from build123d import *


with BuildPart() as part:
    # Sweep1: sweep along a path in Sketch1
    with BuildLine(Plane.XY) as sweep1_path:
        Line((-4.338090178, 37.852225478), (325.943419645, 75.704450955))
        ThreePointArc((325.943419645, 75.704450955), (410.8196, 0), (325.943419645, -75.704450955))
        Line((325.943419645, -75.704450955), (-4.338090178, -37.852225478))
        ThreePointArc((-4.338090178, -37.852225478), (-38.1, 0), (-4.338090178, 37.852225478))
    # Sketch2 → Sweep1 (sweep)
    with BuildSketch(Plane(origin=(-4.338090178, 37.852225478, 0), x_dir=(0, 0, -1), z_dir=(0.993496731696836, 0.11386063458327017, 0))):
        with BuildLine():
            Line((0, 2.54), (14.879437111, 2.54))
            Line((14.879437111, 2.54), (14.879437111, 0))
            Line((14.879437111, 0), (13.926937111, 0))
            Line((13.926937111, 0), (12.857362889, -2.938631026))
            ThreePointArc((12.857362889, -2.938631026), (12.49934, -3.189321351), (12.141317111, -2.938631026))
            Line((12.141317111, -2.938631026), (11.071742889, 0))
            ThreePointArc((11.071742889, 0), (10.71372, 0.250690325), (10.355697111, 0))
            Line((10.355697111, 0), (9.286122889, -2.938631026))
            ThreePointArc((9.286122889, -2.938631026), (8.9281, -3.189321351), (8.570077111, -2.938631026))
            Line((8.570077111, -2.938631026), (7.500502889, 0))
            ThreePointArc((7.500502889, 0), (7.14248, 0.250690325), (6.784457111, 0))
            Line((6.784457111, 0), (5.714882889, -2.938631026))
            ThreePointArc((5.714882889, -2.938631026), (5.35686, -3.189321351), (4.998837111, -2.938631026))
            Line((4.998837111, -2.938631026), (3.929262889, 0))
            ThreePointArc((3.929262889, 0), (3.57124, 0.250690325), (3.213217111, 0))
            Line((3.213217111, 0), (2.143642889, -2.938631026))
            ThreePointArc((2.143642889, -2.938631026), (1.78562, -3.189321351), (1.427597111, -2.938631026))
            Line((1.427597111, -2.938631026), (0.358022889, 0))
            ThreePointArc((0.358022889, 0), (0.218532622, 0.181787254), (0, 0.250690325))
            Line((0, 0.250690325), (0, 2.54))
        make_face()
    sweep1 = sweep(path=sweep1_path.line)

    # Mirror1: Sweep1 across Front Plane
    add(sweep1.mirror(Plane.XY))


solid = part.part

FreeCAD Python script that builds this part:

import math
import FreeCAD as App
import Part
import Sketcher
from FreeCAD import Vector
Q = App.Units.Quantity

doc = App.newDocument("Part")
body = doc.addObject("PartDesign::Body", "Body")

sketch1 = body.newObject("Sketcher::SketchObject", "Sketch")
sketch1.Placement = App.Placement(Vector(-4.33809, 37.852225, 0), App.Rotation(Vector(0, 0, -1), Vector(-0.113860635, 0.993496732, 0), Vector(0.993496732, 0.113860635, 0), "ZXY"))
sketch1.addGeometry([
    Part.LineSegment(Vector(14.88, 2.54, 0), Vector(0, 2.54, 0)),
    Part.LineSegment(Vector(0, 2.54, 0), Vector(0, 0.25, 0)),
    Part.ArcOfCircle(Part.Circle(Vector(0, -0.13, 0), Vector(0, 0, 1), 0.38), math.radians(20), math.radians(90)),
    Part.LineSegment(Vector(0.36, 0, 0), Vector(1.43, -2.94, 0)),
    Part.ArcOfCircle(Part.Circle(Vector(1.79, -2.81, 0), Vector(0, 0, 1), 0.38), math.radians(-160), math.radians(-20)),
    Part.LineSegment(Vector(2.14, -2.94, 0), Vector(3.21, 0, 0)),
    Part.ArcOfCircle(Part.Circle(Vector(3.57, -0.13, 0), Vector(0, 0, 1), 0.38), math.radians(20), math.radians(160)),
    Part.LineSegment(Vector(3.93, 0, 0), Vector(5, -2.94, 0)),
    Part.ArcOfCircle(Part.Circle(Vector(5.36, -2.81, 0), Vector(0, 0, 1), 0.38), math.radians(-160), math.radians(-20)),
    Part.LineSegment(Vector(5.71, -2.94, 0), Vector(6.78, 0, 0)),
    Part.ArcOfCircle(Part.Circle(Vector(7.14, -0.13, 0), Vector(0, 0, 1), 0.38), math.radians(20), math.radians(160)),
    Part.LineSegment(Vector(7.5, 0, 0), Vector(8.57, -2.94, 0)),
    Part.ArcOfCircle(Part.Circle(Vector(8.93, -2.81, 0), Vector(0, 0, 1), 0.38), math.radians(-160), math.radians(-20)),
    Part.LineSegment(Vector(9.29, -2.94, 0), Vector(10.36, 0, 0)),
    Part.ArcOfCircle(Part.Circle(Vector(10.71, -0.13, 0), Vector(0, 0, 1), 0.38), math.radians(20), math.radians(160)),
    Part.LineSegment(Vector(11.07, 0, 0), Vector(12.14, -2.94, 0)),
    Part.ArcOfCircle(Part.Circle(Vector(12.5, -2.81, 0), Vector(0, 0, 1), 0.38), math.radians(-160), math.radians(-20)),
    Part.LineSegment(Vector(12.86, -2.94, 0), Vector(13.93, 0, 0)),
    Part.LineSegment(Vector(13.93, 0, 0), Vector(14.88, 0, 0)),
    Part.LineSegment(Vector(14.88, 0, 0), Vector(14.88, 2.54, 0)),
], False)
sketch1.addConstraint([
    Sketcher.Constraint("Coincident", 0, 2, 1, 1),
    Sketcher.Constraint("Coincident", 1, 2, 2, 2),
    Sketcher.Constraint("Tangent", 2, 1, 3, 1),
    Sketcher.Constraint("Tangent", 3, 2, 4, 1),
    Sketcher.Constraint("Tangent", 4, 2, 5, 1),
    Sketcher.Constraint("Tangent", 5, 2, 6, 2),
    Sketcher.Constraint("Tangent", 6, 1, 7, 1),
    Sketcher.Constraint("Tangent", 7, 2, 8, 1),
    Sketcher.Constraint("Tangent", 8, 2, 9, 1),
    Sketcher.Constraint("Tangent", 9, 2, 10, 2),
    Sketcher.Constraint("Tangent", 10, 1, 11, 1),
    Sketcher.Constraint("Tangent", 11, 2, 12, 1),
    Sketcher.Constraint("Tangent", 12, 2, 13, 1),
    Sketcher.Constraint("Tangent", 13, 2, 14, 2),
    Sketcher.Constraint("Tangent", 14, 1, 15, 1),
    Sketcher.Constraint("Tangent", 15, 2, 16, 1),
    Sketcher.Constraint("Tangent", 16, 2, 17, 1),
    Sketcher.Constraint("Coincident", 17, 2, 18, 1),
    Sketcher.Constraint("Coincident", 18, 2, 19, 1),
    Sketcher.Constraint("Coincident", 19, 2, 0, 1),
    Sketcher.Constraint("Horizontal", 0),
    Sketcher.Constraint("Vertical", 1),
    Sketcher.Constraint("Horizontal", 18),
    Sketcher.Constraint("Vertical", 19),
    Sketcher.Constraint("Equal", 2, 4),
    Sketcher.Constraint("Equal", 4, 6),
    Sketcher.Constraint("Equal", 6, 8),
    Sketcher.Constraint("Equal", 8, 10),
    Sketcher.Constraint("Equal", 10, 12),
    Sketcher.Constraint("Equal", 12, 14),
    Sketcher.Constraint("Equal", 14, 16),
    Sketcher.Constraint("PointOnObject", 2, 3, -2),
    Sketcher.Constraint("PointOnObject", 0, 2, -2),
    Sketcher.Constraint("PointOnObject", 2, 1, -1),
    Sketcher.Constraint("PointOnObject", 5, 2, -1),
    Sketcher.Constraint("PointOnObject", 6, 1, -1),
    Sketcher.Constraint("PointOnObject", 9, 2, -1),
    Sketcher.Constraint("PointOnObject", 10, 1, -1),
    Sketcher.Constraint("PointOnObject", 13, 2, -1),
    Sketcher.Constraint("PointOnObject", 14, 1, -1),
    Sketcher.Constraint("PointOnObject", 17, 2, -1),
    Sketcher.Constraint("Parallel", 3, 7),
    Sketcher.Constraint("Parallel", 5, 9),
    Sketcher.Constraint("Parallel", 9, 13),
    Sketcher.Constraint("Parallel", 13, 17),
    Sketcher.Constraint("Horizontal", 4, 3, 8, 3),
    Sketcher.Constraint("Horizontal", 8, 3, 12, 3),
    Sketcher.Constraint("Horizontal", 12, 3, 16, 3),
    Sketcher.Constraint("DistanceY", 19, 1, 19, 2, Q("0.1 in")),
    Sketcher.Constraint("Angle", 3, Q("-70 deg")),
    Sketcher.Constraint("Radius", 2, Q("0.015 in")),
    Sketcher.Constraint("DistanceX", 18, 1, 18, 2, Q("0.0375 in")),
    Sketcher.Constraint("DistanceX", -1, 1, 4, 3, Q("0.0703 in")),
])

sketch2 = body.newObject("Sketcher::SketchObject", "Sketch001")
sketch2.AttachmentSupport = (doc.getObject("XY_Plane"), [""])
sketch2.MapMode = "FlatFace"
sketch2.addGeometry([
    Part.LineSegment(Vector(-4, 38, 0), Vector(326, 76, 0)),
    Part.ArcOfCircle(Part.Circle(Vector(335, 0, 0), Vector(0, 0, 1), 76), math.radians(-97), math.radians(97)),
    Part.LineSegment(Vector(326, -76, 0), Vector(-4, -38, 0)),
    Part.ArcOfCircle(Part.Circle(Vector(0, 0, 0), Vector(0, 0, 1), 38), math.radians(97), math.radians(263)),
], False)
sketch2.addConstraint([
    Sketcher.Constraint("Tangent", 0, 2, 1, 2),
    Sketcher.Constraint("Tangent", 1, 1, 2, 1),
    Sketcher.Constraint("Tangent", 2, 2, 3, 2),
    Sketcher.Constraint("Tangent", 3, 1, 0, 1),
    Sketcher.Constraint("Coincident", 3, 3, -1, 1),
    Sketcher.Constraint("PointOnObject", 1, 3, -1),
    Sketcher.Constraint("Radius", 1, Q("3 in")),
    Sketcher.Constraint("Radius", 3, Q("1.5 in")),
    Sketcher.Constraint("DistanceX", -1, 1, 1, 3, Q("13.174 in")),
])
doc.recompute()

additivepipe = body.newObject("PartDesign::AdditivePipe", "AdditivePipe")
additivepipe.Profile = sketch1
additivepipe.Spine = (sketch2, ["Edge1", "Edge2", "Edge3", "Edge4"])
doc.recompute()

mirrored = body.newObject("PartDesign::Mirrored", "Mirrored")
mirrored.Originals = [additivepipe]
mirrored.MirrorPlane = (doc.getObject("XY_Plane"), [""])
body.Tip = mirrored

doc.recompute()
